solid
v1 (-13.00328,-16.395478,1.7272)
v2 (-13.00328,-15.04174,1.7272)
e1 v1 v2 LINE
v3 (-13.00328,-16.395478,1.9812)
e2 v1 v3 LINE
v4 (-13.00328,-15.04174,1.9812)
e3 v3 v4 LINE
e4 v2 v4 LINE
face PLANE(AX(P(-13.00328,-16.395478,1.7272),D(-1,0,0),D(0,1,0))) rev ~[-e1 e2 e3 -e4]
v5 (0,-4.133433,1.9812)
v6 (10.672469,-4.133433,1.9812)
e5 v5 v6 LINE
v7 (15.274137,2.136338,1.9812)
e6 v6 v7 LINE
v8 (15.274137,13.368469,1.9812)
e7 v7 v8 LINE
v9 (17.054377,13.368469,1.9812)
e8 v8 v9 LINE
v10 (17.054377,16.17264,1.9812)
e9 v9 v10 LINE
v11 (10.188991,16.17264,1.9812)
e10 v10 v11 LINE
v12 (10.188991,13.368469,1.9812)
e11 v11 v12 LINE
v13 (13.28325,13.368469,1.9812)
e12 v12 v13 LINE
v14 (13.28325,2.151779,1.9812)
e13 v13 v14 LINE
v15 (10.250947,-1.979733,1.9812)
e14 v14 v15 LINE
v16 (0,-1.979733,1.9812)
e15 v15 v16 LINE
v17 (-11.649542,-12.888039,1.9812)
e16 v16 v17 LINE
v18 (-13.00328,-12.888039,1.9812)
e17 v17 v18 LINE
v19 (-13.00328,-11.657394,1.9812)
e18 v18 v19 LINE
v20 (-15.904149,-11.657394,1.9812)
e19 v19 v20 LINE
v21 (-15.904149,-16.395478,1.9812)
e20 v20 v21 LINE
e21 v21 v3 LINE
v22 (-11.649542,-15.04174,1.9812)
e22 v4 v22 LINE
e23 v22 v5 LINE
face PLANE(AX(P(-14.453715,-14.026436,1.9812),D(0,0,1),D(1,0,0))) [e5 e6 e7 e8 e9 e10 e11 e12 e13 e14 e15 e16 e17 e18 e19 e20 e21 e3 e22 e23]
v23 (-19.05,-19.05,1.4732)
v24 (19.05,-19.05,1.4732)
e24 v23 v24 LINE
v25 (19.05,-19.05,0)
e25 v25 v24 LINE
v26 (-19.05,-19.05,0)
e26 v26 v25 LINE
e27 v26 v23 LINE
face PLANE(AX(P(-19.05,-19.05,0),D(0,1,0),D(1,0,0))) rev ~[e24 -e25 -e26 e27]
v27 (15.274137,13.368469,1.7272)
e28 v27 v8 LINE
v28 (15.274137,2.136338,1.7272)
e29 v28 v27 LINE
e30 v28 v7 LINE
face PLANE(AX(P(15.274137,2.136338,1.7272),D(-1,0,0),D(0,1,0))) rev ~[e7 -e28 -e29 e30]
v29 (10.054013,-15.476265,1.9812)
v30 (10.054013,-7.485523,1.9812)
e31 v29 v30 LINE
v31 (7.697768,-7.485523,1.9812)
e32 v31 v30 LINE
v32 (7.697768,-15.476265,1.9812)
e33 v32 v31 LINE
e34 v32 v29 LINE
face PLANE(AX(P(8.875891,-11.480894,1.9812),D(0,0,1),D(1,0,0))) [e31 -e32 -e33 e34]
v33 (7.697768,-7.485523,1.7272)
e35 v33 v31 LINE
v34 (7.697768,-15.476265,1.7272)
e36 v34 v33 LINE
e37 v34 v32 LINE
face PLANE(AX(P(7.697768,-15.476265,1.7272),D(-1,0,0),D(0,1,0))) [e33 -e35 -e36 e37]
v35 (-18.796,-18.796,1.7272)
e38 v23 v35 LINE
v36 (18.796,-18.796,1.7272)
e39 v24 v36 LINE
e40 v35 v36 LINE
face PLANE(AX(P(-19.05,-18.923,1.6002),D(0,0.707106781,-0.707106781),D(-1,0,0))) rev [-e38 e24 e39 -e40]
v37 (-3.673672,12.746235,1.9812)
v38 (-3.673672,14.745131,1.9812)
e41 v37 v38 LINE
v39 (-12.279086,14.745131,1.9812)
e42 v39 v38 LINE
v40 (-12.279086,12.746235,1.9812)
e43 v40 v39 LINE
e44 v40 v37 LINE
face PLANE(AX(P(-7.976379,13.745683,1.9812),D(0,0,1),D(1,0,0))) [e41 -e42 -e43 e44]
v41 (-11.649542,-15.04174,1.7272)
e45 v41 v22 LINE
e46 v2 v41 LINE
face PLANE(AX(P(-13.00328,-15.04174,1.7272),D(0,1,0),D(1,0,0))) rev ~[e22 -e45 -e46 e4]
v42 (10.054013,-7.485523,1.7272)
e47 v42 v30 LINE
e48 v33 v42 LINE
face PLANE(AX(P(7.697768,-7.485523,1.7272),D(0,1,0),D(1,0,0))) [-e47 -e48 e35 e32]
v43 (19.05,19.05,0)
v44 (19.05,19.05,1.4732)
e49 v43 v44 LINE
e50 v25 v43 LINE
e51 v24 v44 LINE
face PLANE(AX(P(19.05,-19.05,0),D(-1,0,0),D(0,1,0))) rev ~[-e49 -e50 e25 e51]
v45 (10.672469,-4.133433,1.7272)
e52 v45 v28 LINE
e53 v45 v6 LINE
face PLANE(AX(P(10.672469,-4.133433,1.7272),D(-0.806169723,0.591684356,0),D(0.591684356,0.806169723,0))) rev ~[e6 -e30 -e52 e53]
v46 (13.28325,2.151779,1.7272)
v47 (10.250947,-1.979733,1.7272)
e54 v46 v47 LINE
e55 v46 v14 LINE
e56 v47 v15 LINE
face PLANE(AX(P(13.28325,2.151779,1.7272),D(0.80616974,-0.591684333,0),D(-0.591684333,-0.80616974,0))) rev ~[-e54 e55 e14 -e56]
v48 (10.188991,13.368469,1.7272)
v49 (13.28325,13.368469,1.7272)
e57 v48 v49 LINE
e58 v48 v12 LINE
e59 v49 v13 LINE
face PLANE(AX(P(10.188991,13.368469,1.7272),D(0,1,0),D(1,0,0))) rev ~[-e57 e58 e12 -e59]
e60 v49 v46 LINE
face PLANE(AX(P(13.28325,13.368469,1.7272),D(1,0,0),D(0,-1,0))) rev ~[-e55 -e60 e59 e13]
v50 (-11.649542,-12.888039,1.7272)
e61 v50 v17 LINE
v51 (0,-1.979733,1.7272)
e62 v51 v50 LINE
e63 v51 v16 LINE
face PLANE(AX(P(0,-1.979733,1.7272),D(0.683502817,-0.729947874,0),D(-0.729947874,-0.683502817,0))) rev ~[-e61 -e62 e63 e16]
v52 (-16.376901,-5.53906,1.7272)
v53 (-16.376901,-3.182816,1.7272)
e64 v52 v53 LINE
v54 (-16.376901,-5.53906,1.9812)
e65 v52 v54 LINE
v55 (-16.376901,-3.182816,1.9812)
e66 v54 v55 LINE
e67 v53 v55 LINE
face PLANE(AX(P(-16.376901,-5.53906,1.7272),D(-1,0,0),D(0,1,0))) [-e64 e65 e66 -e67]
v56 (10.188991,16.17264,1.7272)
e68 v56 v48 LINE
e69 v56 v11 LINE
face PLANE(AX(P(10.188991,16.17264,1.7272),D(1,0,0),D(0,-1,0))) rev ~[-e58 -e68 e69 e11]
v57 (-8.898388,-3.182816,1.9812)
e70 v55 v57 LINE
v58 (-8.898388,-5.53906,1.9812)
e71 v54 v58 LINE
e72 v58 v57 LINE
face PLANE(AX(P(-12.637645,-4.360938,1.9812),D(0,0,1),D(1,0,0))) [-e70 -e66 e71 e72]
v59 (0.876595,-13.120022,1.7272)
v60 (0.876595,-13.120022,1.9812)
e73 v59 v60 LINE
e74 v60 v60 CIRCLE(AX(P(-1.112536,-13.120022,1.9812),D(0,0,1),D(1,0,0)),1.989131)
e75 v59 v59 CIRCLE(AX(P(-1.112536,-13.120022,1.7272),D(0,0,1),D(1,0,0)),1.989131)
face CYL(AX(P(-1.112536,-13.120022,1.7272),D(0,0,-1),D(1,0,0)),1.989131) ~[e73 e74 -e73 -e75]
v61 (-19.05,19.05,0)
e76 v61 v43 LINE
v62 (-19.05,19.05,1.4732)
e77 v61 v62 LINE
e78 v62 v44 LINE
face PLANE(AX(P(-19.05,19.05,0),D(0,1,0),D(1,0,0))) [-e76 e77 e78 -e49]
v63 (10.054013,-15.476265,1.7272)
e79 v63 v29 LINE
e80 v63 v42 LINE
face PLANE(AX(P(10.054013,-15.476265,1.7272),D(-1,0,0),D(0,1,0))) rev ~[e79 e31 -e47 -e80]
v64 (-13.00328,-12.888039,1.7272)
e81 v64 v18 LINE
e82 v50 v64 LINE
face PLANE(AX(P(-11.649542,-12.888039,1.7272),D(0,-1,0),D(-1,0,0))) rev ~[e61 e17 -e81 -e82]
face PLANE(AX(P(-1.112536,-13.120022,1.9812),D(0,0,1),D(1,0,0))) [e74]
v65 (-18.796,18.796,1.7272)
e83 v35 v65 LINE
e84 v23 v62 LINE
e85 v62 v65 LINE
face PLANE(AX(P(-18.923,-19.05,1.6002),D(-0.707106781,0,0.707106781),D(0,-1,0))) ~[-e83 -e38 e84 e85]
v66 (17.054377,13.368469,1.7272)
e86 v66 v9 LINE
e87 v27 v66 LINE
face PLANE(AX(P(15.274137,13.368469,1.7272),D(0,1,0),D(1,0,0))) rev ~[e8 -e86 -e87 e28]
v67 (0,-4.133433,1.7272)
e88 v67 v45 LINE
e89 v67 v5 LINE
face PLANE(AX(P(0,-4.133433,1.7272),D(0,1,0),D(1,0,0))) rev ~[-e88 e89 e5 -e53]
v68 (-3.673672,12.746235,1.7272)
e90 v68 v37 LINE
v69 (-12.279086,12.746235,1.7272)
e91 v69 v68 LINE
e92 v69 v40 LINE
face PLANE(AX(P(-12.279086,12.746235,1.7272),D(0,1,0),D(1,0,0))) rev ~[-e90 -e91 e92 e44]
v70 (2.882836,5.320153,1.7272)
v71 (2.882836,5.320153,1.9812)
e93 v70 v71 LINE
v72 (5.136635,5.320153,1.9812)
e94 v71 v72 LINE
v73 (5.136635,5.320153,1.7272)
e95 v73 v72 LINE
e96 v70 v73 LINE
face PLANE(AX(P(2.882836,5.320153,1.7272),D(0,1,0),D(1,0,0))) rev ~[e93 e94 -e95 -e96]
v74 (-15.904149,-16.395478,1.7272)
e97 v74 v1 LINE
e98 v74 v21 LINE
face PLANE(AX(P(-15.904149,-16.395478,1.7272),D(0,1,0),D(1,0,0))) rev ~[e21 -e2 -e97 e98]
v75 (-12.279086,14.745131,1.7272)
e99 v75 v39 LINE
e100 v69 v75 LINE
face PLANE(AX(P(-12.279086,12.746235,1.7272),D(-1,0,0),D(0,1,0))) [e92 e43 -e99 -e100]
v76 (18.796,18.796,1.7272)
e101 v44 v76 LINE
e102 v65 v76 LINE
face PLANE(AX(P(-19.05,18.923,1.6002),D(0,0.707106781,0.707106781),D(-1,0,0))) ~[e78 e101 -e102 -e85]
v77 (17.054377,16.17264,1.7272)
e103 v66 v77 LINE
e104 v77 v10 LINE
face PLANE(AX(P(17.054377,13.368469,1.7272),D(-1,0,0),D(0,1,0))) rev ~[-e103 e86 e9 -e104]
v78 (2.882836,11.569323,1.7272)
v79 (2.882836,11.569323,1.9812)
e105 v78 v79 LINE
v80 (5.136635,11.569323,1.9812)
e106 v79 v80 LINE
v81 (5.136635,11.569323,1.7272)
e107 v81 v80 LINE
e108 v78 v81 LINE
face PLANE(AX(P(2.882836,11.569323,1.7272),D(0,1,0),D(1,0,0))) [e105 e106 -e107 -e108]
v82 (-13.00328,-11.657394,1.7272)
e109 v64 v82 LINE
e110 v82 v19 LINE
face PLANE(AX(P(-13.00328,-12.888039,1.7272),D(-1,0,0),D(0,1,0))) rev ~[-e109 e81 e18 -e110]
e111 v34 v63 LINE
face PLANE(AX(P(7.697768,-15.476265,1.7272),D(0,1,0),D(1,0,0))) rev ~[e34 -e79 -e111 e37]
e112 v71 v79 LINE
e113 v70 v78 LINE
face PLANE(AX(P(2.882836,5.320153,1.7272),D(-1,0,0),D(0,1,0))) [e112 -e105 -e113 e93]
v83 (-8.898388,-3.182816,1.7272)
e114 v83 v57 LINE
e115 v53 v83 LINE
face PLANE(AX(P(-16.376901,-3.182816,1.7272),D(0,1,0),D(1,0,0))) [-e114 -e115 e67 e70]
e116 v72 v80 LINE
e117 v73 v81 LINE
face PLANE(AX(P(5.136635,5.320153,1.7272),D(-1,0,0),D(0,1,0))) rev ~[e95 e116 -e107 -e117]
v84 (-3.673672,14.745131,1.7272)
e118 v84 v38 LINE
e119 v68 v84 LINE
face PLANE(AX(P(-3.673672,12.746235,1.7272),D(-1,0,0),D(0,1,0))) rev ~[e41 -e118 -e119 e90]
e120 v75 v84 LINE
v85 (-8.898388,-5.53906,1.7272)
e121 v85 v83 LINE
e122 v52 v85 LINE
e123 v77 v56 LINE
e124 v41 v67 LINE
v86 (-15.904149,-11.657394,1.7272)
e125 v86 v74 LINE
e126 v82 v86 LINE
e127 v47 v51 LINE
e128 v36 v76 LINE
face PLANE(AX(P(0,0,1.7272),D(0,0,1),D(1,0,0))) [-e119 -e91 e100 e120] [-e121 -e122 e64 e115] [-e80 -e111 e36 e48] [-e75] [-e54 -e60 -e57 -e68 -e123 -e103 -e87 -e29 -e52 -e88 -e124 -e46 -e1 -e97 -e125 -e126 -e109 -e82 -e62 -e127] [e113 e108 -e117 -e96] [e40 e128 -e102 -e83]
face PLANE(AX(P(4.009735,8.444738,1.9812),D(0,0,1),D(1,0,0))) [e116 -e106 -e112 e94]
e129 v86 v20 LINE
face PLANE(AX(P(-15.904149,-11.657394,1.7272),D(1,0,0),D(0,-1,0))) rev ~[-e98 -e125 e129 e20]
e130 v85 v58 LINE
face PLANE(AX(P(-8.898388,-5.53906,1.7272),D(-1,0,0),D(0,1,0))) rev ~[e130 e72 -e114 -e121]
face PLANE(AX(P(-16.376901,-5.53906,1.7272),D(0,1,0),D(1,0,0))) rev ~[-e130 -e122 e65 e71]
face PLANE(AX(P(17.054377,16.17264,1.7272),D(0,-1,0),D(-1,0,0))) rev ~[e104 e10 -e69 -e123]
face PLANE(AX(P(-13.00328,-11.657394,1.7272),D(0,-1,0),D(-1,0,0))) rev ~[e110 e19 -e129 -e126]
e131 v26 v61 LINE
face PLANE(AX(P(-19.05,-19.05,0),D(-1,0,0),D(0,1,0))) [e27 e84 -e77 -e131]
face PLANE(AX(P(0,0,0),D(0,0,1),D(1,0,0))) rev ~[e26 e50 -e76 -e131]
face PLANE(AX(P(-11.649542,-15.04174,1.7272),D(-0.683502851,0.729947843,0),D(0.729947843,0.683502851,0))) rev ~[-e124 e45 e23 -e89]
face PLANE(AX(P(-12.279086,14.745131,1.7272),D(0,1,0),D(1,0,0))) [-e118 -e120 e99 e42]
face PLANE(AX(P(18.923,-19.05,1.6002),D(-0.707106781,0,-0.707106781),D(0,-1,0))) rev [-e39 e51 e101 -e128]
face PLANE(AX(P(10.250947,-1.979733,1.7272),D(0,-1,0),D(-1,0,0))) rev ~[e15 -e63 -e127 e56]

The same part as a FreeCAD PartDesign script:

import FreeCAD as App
import Part
import Sketcher

V = App.Vector
Q = App.Units.Quantity


def edges_at(feature, points):
    """Names of the edges that pass closest to the given points."""
    edges = feature.Shape.Edges
    near = lambda p: min(range(len(edges)), key=lambda i: edges[i].distToShape(Part.Vertex(*p))[0])
    return sorted({f"Edge{near(p) + 1}" for p in points})


def add_polygon(sketch, points):
    """Adds a closed chain of lines whose ends are joined by coincident constraints."""
    first, n = sketch.GeometryCount, len(points)
    for a, b in zip(points, points[1:] + points[:1]):
        sketch.addGeometry(Part.LineSegment(App.Vector(*a, 0), App.Vector(*b, 0)), False)
    for i in range(n):
        sketch.addConstraint(Sketcher.Constraint("Coincident", first + i, 2, first + (i + 1) % n, 1))

doc = App.newDocument("Part")
body = doc.addObject("PartDesign::Body", "Body")

sketch1 = body.newObject("Sketcher::SketchObject", "Sketch")
sketch1.AttachmentSupport = (doc.getObject("XY_Plane"), [""])
sketch1.MapMode = "FlatFace"
add_polygon(sketch1, [(-19, 19), (-19, -19), (19, -19), (19, 19)])
sketch1.addConstraint([
    Sketcher.Constraint("Vertical", 0),
    Sketcher.Constraint("Horizontal", 1),
    Sketcher.Constraint("Vertical", 2),
    Sketcher.Constraint("Horizontal", 3),
    Sketcher.Constraint("Symmetric", 0, 2, 2, 2, -1, 1),
    Sketcher.Constraint("Equal", 3, 0),
    Sketcher.Constraint("DistanceX", 1, 1, 1, 2, Q("1.5 in")),
])
pad1 = body.newObject("PartDesign::Pad", "Pad")
pad1.Profile = sketch1
pad1.Length = Q("0.068 in")
doc.recompute()

chamfer = body.newObject("PartDesign::Chamfer", "Chamfer")
chamfer.Base = (pad1, edges_at(pad1, [
    (0, -19.05, 1.727),
    (-19.05, 0, 1.727),
    (0, 19.05, 1.727),
    (19.05, 0, 1.727),
]))
chamfer.Size = Q("0.01 in")

sketch2 = body.newObject("Sketcher::SketchObject", "Sketch001")
sketch2.AttachmentSupport = (doc.getObject("XY_Plane"), [""])
sketch2.MapMode = "FlatFace"
sketch2.AttachmentOffset = App.Placement(V(0, 0, 0.068 * 25.4), App.Rotation())
add_polygon(sketch2, [(-13, -11.7), (-15.9, -11.7), (-15.9, -16.4), (-13, -16.4), (-13, -15), (-11.6, -15), (0, -4.1), (10.7, -4.1), (15.3, 2.1), (15.3, 13.4), (17.1, 13.4), (17.1, 16.2), (10.2, 16.2), (10.2, 13.4), (13.3, 13.4), (13.3, 2.2), (10.3, -2), (0, -2), (-11.6, -12.9), (-13, -12.9)])
add_polygon(sketch2, [(-12.3, 14.7), (-12.3, 12.7), (-3.7, 12.7), (-3.7, 14.7)])
add_polygon(sketch2, [(7.7, -7.5), (7.7, -15.5), (10.1, -15.5), (10.1, -7.5)])
add_polygon(sketch2, [(-16.4, -3.2), (-16.4, -5.5), (-8.9, -5.5), (-8.9, -3.2)])
add_polygon(sketch2, [(2.9, 11.6), (2.9, 5.3), (5.1, 5.3), (5.1, 11.6)])
sketch2.addGeometry(Part.Circle(V(-1.1, -13.1, 0), V(0, 0, 1), 2), False)
sketch2.addConstraint([
    Sketcher.Constraint("Horizontal", 0),
    Sketcher.Constraint("Vertical", 1),
    Sketcher.Constraint("Horizontal", 2),
    Sketcher.Constraint("Vertical", 3),
    Sketcher.Constraint("Horizontal", 4),
    Sketcher.Constraint("Horizontal", 6),
    Sketcher.Constraint("Vertical", 8),
    Sketcher.Constraint("Horizontal", 9),
    Sketcher.Constraint("Vertical", 10),
    Sketcher.Constraint("Horizontal", 11),
    Sketcher.Constraint("Vertical", 12),
    Sketcher.Constraint("Horizontal", 13),
    Sketcher.Constraint("Vertical", 14),
    Sketcher.Constraint("Horizontal", 16),
    Sketcher.Constraint("Horizontal", 18),
    Sketcher.Constraint("Vertical", 19),
    Sketcher.Constraint("Vertical", 20),
    Sketcher.Constraint("Horizontal", 21),
    Sketcher.Constraint("Vertical", 22),
    Sketcher.Constraint("Horizontal", 23),
    Sketcher.Constraint("Vertical", 24),
    Sketcher.Constraint("Horizontal", 25),
    Sketcher.Constraint("Vertical", 26),
    Sketcher.Constraint("Horizontal", 27),
    Sketcher.Constraint("Vertical", 28),
    Sketcher.Constraint("Horizontal", 29),
    Sketcher.Constraint("Vertical", 30),
    Sketcher.Constraint("Horizontal", 31),
    Sketcher.Constraint("Vertical", 32),
    Sketcher.Constraint("Horizontal", 33),
    Sketcher.Constraint("Vertical", 34),
    Sketcher.Constraint("Horizontal", 35),
    Sketcher.Constraint("PointOnObject", 5, 2, -2),
    Sketcher.Constraint("PointOnObject", 16, 2, -2),
    Sketcher.Constraint("Parallel", 7, 15),
    Sketcher.Constraint("Parallel", 5, 17),
    Sketcher.Constraint("Horizontal", 9, 2, 12, 2),
    Sketcher.Constraint("Vertical", 4, 2, 17, 2),
    Sketcher.Constraint("Vertical", 3, 2, 18, 2),
    Sketcher.Constraint("Equal", 18, 3),
    Sketcher.Constraint("Equal", 27, 28),
    Sketcher.Constraint("Diameter", 36, 3.978262),
    Sketcher.Constraint("DistanceX", 33, 1, 33, 2, 2.253799),
    Sketcher.Constraint("DistanceX", 0, 2, 0, 1, 2.900869),
    Sketcher.Constraint("DistanceX", 6, 1, 6, 2, 10.672469),
    Sketcher.Constraint("DistanceX", 9, 1, 9, 2, 1.78024),
    Sketcher.Constraint("DistanceX", 13, 1, 13, 2, 3.094259),
    Sketcher.Constraint("DistanceY", 8, 1, 8, 2, 11.232131),
    Sketcher.Constraint("DistanceY", 10, 1, 10, 2, 2.804171),
    Sketcher.Constraint("DistanceY", 14, 2, 14, 1, 11.21669),
    Sketcher.Constraint("DistanceY", 32, 2, 32, 1, 6.24917),
    Sketcher.Constraint("DistanceX", 28, 2, -1, 1, 16.376901),
    Sketcher.Constraint("DistanceY", 6, 2, 15, 2, 2.1537),
    Sketcher.Constraint("DistanceY", 15, 2, 12, 2, 15.348202),
    Sketcher.Constraint("DistanceX", 24, 2, 6, 2, 2.9747),
    Sketcher.Constraint("DistanceX", 4, 1, 4, 2, 1.353738),
    Sketcher.Constraint("DistanceX", 11, 2, 11, 1, 6.865386),
    Sketcher.Constraint("DistanceX", 16, 2, 16, 1, 10.250947),
    Sketcher.Constraint("DistanceX", 21, 1, 21, 2, 8.605414),
    Sketcher.Constraint("DistanceX", 25, 1, 25, 2, 2.356245),
    Sketcher.Constraint("DistanceX", 29, 1, 29, 2, 7.478513),
    Sketcher.Constraint("DistanceY", 1, 2, 1, 1, 4.738084),
    Sketcher.Constraint("DistanceY", 20, 2, 20, 1, 1.998895),
    Sketcher.Constraint("DistanceY", 24, 2, 24, 1, 7.990742),
    Sketcher.Constraint("DistanceX", 0, 2, -1, 1, 15.904149),
    Sketcher.Constraint("DistanceY", 1, 2, -1, 1, 16.395478),
    Sketcher.Constraint("DistanceY", -1, 1, 8, 2, 13.368469),
    Sketcher.Constraint("DistanceX", 21, 2, -1, 1, 3.673672),
    Sketcher.Constraint("DistanceY", -1, 1, 22, 2, 14.745131),
    Sketcher.Constraint("DistanceY", 28, 2, -1, 1, 5.53906),
    Sketcher.Constraint("DistanceY", 36, 3, 0, 2, 1.462628),
    Sketcher.Constraint("DistanceX", 36, 3, 25, 2, 11.16655),
    Sketcher.Constraint("DistanceY", 26, 2, 6, 2, 3.35209),
    Sketcher.Constraint("DistanceX", 32, 2, 15, 2, 7.368111),
    Sketcher.Constraint("DistanceY", -1, 1, 32, 2, 5.320153),
])
pad2 = body.newObject("PartDesign::Pad", "Pad001")
pad2.Profile = sketch2
pad2.Length = Q("0.01 in")

doc.recompute()
